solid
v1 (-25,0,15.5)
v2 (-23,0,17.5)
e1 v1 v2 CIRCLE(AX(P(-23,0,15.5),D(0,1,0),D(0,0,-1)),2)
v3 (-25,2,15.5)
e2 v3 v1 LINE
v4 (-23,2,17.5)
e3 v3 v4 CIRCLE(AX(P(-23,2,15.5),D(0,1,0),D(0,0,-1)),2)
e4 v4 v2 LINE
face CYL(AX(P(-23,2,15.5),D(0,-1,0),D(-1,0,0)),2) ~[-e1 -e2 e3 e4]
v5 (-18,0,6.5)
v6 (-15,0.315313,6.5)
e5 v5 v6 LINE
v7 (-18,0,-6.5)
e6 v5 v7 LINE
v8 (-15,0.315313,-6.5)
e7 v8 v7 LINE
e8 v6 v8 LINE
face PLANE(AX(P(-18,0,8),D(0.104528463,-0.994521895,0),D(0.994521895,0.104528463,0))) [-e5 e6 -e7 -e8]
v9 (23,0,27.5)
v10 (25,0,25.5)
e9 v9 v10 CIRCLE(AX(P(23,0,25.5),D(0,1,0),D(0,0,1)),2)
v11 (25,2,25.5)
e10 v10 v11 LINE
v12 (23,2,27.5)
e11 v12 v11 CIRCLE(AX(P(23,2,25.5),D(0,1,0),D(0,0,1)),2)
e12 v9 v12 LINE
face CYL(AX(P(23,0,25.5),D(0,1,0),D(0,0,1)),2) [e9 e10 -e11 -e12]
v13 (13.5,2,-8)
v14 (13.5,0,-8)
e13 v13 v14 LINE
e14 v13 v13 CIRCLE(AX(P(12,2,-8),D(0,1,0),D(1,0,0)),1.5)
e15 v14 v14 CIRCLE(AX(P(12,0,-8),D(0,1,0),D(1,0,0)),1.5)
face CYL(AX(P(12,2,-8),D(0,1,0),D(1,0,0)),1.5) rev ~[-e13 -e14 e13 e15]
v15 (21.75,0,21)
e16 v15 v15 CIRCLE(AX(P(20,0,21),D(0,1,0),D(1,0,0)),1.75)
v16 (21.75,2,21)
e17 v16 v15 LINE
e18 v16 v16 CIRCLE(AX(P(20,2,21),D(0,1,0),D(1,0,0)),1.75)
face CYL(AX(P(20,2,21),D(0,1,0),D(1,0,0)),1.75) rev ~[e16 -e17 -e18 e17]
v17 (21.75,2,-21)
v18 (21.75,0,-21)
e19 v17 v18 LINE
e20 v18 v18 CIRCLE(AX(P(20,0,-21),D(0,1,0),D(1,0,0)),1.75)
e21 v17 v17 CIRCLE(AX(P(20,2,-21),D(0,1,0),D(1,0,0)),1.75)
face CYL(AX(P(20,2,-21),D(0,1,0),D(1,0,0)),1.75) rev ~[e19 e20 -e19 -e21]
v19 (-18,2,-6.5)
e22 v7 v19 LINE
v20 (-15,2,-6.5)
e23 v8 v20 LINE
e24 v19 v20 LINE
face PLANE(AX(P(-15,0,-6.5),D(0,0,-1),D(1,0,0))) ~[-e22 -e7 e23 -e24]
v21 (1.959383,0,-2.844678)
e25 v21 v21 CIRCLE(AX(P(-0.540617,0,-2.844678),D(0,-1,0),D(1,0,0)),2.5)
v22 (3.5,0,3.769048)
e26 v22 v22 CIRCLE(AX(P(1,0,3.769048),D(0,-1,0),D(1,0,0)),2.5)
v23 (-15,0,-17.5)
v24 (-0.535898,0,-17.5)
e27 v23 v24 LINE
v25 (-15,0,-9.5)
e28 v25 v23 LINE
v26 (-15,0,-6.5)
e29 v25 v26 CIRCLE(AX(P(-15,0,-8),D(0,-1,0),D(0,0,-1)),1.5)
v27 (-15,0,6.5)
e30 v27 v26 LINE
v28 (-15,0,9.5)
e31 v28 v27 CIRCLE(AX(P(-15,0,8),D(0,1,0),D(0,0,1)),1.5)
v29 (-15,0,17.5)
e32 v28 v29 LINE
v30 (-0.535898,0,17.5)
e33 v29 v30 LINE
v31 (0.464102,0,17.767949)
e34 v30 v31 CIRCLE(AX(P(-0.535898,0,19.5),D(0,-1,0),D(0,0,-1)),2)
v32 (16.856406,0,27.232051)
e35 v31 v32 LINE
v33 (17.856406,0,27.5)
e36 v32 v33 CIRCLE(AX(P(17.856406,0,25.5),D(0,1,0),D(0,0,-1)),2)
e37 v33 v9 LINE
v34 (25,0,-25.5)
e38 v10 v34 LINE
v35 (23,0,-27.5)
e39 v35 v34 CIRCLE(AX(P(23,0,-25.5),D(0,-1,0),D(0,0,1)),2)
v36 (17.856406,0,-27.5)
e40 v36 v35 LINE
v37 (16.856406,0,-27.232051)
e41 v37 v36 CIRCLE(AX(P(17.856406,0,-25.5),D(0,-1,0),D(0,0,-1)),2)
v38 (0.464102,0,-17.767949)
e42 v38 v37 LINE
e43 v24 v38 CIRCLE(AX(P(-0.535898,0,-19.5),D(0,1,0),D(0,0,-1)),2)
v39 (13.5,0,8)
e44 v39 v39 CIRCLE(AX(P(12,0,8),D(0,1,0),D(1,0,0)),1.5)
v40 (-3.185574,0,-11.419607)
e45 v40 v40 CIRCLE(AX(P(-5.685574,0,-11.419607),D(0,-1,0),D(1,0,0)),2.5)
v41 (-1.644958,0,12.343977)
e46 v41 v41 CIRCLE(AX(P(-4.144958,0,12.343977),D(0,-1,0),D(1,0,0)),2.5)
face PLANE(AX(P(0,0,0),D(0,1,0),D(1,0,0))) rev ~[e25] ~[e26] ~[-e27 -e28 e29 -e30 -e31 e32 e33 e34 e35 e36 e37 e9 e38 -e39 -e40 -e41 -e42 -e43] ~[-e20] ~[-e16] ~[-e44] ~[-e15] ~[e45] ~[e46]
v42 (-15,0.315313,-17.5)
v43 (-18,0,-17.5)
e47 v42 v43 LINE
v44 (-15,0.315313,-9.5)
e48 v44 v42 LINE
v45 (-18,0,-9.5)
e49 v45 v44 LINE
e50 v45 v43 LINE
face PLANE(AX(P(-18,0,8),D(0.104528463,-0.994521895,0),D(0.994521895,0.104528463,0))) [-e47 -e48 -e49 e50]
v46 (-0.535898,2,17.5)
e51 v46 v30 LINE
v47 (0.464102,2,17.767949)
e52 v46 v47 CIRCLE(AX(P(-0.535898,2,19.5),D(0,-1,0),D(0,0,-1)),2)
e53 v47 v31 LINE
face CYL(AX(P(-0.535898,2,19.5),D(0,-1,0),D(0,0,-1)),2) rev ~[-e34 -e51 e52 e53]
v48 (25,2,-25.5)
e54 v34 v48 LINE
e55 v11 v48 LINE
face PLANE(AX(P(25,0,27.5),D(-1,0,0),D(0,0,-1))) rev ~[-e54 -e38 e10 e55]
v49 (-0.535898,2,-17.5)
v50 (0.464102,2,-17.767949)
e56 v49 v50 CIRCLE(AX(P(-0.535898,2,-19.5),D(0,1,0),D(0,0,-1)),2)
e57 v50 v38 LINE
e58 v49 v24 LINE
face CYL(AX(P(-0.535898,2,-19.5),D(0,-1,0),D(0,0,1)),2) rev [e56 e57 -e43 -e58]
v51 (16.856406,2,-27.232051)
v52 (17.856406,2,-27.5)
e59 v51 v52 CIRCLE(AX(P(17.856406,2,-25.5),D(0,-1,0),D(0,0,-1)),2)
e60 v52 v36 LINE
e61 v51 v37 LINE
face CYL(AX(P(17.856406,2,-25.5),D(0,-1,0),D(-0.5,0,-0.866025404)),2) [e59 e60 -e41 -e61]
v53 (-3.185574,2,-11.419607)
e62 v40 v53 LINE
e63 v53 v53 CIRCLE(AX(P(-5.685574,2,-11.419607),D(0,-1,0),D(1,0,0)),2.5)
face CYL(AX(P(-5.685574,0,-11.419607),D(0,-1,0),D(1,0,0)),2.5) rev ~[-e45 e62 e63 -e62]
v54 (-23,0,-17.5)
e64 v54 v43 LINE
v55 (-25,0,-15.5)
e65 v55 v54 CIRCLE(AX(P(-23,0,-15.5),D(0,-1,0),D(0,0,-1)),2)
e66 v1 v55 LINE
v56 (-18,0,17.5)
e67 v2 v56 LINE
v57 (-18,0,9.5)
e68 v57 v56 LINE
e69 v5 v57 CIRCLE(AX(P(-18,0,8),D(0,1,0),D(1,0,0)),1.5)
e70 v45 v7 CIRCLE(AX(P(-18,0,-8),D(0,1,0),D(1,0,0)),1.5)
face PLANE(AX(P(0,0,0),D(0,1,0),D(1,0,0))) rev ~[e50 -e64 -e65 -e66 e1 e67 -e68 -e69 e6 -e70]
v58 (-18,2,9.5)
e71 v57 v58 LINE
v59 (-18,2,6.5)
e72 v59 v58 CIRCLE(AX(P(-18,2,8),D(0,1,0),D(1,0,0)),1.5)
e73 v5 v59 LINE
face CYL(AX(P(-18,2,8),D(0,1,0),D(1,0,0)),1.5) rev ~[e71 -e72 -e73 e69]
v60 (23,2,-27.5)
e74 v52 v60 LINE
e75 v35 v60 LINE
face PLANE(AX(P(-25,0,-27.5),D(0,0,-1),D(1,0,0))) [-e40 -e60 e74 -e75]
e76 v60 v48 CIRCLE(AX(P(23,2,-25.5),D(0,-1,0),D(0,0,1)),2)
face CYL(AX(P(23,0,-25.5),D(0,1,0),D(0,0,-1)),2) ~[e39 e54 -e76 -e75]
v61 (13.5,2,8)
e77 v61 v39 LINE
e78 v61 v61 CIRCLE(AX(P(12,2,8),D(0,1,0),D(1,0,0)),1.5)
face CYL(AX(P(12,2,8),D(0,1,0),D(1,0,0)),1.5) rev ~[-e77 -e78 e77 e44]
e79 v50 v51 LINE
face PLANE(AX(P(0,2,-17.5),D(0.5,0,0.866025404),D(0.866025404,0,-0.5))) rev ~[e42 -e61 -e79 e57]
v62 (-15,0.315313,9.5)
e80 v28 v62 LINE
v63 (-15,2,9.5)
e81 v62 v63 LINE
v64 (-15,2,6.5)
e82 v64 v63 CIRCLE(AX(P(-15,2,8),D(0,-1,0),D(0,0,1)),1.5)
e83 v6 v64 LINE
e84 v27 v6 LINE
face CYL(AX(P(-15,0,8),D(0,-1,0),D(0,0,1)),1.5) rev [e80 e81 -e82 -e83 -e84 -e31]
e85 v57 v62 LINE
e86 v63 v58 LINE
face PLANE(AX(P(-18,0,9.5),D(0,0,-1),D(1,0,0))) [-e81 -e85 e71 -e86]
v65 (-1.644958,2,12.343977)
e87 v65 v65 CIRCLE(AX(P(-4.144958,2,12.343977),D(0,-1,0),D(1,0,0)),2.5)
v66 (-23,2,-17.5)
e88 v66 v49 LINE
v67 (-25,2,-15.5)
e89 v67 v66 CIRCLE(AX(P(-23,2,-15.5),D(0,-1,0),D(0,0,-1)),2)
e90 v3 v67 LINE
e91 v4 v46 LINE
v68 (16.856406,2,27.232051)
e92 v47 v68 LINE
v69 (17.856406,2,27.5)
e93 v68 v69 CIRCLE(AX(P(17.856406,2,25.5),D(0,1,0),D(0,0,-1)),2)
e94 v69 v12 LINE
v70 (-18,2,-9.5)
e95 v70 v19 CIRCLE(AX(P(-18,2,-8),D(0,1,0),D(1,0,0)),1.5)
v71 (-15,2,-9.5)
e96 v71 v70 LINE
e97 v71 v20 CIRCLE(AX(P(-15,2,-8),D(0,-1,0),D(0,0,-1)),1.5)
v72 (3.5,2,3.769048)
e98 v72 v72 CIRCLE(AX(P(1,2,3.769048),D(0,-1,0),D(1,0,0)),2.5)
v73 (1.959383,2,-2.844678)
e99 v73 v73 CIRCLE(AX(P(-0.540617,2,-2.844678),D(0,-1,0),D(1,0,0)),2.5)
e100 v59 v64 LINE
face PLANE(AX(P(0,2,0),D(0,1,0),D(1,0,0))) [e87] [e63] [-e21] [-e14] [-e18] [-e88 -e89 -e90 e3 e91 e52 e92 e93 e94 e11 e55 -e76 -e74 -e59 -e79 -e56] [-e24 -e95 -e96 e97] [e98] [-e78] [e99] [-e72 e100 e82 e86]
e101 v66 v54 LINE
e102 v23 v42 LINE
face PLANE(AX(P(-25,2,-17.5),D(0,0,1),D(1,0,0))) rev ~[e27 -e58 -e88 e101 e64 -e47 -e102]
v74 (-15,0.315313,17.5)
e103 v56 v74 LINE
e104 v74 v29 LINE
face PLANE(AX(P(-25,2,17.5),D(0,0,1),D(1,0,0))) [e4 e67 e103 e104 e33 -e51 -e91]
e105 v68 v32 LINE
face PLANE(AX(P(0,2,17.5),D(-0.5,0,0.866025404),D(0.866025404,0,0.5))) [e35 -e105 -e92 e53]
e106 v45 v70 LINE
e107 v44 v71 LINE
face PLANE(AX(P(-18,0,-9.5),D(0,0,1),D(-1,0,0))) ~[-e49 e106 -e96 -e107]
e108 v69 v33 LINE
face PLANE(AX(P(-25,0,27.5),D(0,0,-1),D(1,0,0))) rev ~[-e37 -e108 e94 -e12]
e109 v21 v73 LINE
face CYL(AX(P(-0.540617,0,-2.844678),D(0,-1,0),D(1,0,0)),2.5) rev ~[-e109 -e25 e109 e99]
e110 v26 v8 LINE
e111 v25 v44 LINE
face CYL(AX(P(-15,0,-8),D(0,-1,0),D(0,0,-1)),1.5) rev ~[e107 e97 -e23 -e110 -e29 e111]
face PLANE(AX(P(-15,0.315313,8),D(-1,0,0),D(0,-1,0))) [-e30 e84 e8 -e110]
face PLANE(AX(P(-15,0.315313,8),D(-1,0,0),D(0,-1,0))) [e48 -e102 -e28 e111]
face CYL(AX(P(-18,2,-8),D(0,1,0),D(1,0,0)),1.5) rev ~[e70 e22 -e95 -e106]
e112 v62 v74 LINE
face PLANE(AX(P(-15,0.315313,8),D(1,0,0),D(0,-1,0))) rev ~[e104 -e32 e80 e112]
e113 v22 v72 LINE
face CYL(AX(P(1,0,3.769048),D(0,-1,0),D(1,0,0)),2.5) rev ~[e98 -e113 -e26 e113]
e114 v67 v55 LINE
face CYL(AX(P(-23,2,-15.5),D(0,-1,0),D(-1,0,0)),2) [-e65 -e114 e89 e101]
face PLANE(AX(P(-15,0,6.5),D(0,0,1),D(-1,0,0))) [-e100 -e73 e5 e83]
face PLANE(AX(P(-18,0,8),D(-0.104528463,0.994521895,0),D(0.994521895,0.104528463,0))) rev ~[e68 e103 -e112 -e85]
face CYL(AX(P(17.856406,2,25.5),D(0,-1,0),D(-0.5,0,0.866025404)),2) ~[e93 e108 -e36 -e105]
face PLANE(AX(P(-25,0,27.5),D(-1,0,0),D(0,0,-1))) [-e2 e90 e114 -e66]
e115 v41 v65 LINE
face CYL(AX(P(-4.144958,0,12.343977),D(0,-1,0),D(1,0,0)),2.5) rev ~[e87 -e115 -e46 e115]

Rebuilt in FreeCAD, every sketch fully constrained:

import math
import FreeCAD as App
import Part
import Sketcher

V = App.Vector
Q = App.Units.Quantity


def edges_at(feature, points):
    """Names of the edges that pass closest to the given points."""
    edges = feature.Shape.Edges
    near = lambda p: min(range(len(edges)), key=lambda i: edges[i].distToShape(Part.Vertex(*p))[0])
    return sorted({f"Edge{near(p) + 1}" for p in points})

doc = App.newDocument("Part")
body = doc.addObject("PartDesign::Body", "Body")

# Sketch on XZ plane
sketch1 = doc.addObject("Sketcher::SketchObject", "Sketch")
body.addObject(sketch1)
sketch1.AttachmentSupport = (doc.XZ_Plane, [""])
sketch1.MapMode = "FlatFace"
sketch1.addGeometry(Part.LineSegment(V(-25, -28, 0), V(-25, 28, 0)), False)
sketch1.addGeometry(Part.LineSegment(V(-25, 28, 0), V(25, 28, 0)), False)
sketch1.addGeometry(Part.LineSegment(V(25, 28, 0), V(25, -28, 0)), False)
sketch1.addGeometry(Part.LineSegment(V(25, -28, 0), V(-25, -28, 0)), False)
sketch1.addConstraint(Sketcher.Constraint("Coincident", 0, 2, 1, 1))
sketch1.addConstraint(Sketcher.Constraint("Coincident", 1, 2, 2, 1))
sketch1.addConstraint(Sketcher.Constraint("Coincident", 2, 2, 3, 1))
sketch1.addConstraint(Sketcher.Constraint("Coincident", 3, 2, 0, 1))
sketch1.addConstraint(Sketcher.Constraint("Vertical", 0))
sketch1.addConstraint(Sketcher.Constraint("Horizontal", 1))
sketch1.addConstraint(Sketcher.Constraint("Vertical", 2))
sketch1.addConstraint(Sketcher.Constraint("Horizontal", 3))
sketch1.addConstraint(Sketcher.Constraint("Symmetric", 0, 2, 2, 2, -1, 1))
sketch1.addConstraint(Sketcher.Constraint("DistanceX", 1, 1, 1, 2, 50.0))
sketch1.addConstraint(Sketcher.Constraint("DistanceY", 0, 1, 0, 2, 55.0))
pad1 = doc.addObject("PartDesign::Pad", "Pad")
body.addObject(pad1)
pad1.Profile = sketch1
pad1.Length = 2
pad1.Reversed = True

# Sketch on XZ plane
sketch2 = doc.addObject("Sketcher::SketchObject", "Sketch001")
body.addObject(sketch2)
sketch2.AttachmentSupport = (doc.XZ_Plane, [""])
sketch2.MapMode = "FlatFace"
sketch2.AttachmentOffset = App.Placement(V(0, 0, -2), App.Rotation())
sketch2.addGeometry(Part.Circle(V(-18, -8, 0), V(0, 0, 1), 1.5), False)
sketch2.addGeometry(Part.Circle(V(-18, 8, 0), V(0, 0, 1), 1.5), False)
sketch2.addGeometry(Part.Circle(V(12, 8, 0), V(0, 0, 1), 1.5), False)
sketch2.addGeometry(Part.Circle(V(12, -8, 0), V(0, 0, 1), 1.5), False)
sketch2.addConstraint(Sketcher.Constraint("Equal", 0, 1))
sketch2.addConstraint(Sketcher.Constraint("Equal", 1, 2))
sketch2.addConstraint(Sketcher.Constraint("Equal", 2, 3))
sketch2.addConstraint(Sketcher.Constraint("Symmetric", 0, 3, 1, 3, -1))
sketch2.addConstraint(Sketcher.Constraint("Symmetric", 2, 3, 3, 3, -1))
sketch2.addConstraint(Sketcher.Constraint("Horizontal", 1, 3, 2, 3))
sketch2.addConstraint(Sketcher.Constraint("Diameter", 0, 3.0))
sketch2.addConstraint(Sketcher.Constraint("DistanceX", 0, 3, -1, 1, 18.0))
sketch2.addConstraint(Sketcher.Constraint("DistanceY", 0, 3, -1, 1, 8.0))
sketch2.addConstraint(Sketcher.Constraint("DistanceX", -1, 1, 2, 3, 12.0))
pocket1 = doc.addObject("PartDesign::Pocket", "Pocket")
body.addObject(pocket1)
pocket1.Profile = sketch2
pocket1.Type = "ThroughAll"
pocket1.Reversed = True

# Sketch on XZ plane
sketch3 = doc.addObject("Sketcher::SketchObject", "Sketch002")
body.addObject(sketch3)
sketch3.AttachmentSupport = (doc.XZ_Plane, [""])
sketch3.MapMode = "FlatFace"
sketch3.addGeometry(Part.LineSegment(V(-15, 9.5, 0), V(-18, 9.5, 0)), False)
sketch3.addGeometry(Part.LineSegment(V(-18, 9.5, 0), V(-18, 6.5, 0)), False)
sketch3.addGeometry(Part.LineSegment(V(-18, 6.5, 0), V(-15, 6.5, 0)), False)
sketch3.addGeometry(Part.ArcOfCircle(Part.Circle(V(-15, 8, 0), V(0, 0, 1), 1.5), math.radians(-90), math.radians(90)), False)
sketch3.addConstraint(Sketcher.Constraint("Coincident", 0, 2, 1, 1))
sketch3.addConstraint(Sketcher.Constraint("Coincident", 1, 2, 2, 1))
sketch3.addConstraint(Sketcher.Constraint("Tangent", 2, 2, 3, 1))
sketch3.addConstraint(Sketcher.Constraint("Tangent", 3, 2, 0, 1))
sketch3.addConstraint(Sketcher.Constraint("Horizontal", 0))
sketch3.addConstraint(Sketcher.Constraint("Vertical", 1))
sketch3.addConstraint(Sketcher.Constraint("Horizontal", 2))
sketch3.addConstraint(Sketcher.Constraint("Equal", 2, 1))
sketch3.addConstraint(Sketcher.Constraint("Radius", 3, 1.5))
sketch3.addConstraint(Sketcher.Constraint("DistanceX", 3, 3, -1, 1, 15.0))
sketch3.addConstraint(Sketcher.Constraint("DistanceY", -1, 1, 3, 3, 8.0))
pocket2 = doc.addObject("PartDesign::Pocket", "Pocket001")
body.addObject(pocket2)
pocket2.Profile = sketch3
pocket2.Length = 10

# Sketch on XY plane
sketch4 = doc.addObject("Sketcher::SketchObject", "Sketch003")
body.addObject(sketch4)
sketch4.AttachmentSupport = (doc.XY_Plane, [""])
sketch4.MapMode = "FlatFace"
sketch4.AttachmentOffset = App.Placement(V(0, 0, 8), App.Rotation())
sketch4.addGeometry(Part.LineSegment(V(-15, 0.32, 0), V(-18, 0, 0)), False)
sketch4.addGeometry(Part.LineSegment(V(-18, 0, 0), V(-15, 0, 0)), False)
sketch4.addGeometry(Part.LineSegment(V(-15, 0, 0), V(-15, 0.32, 0)), False)
sketch4.addConstraint(Sketcher.Constraint("Coincident", 0, 2, 1, 1))
sketch4.addConstraint(Sketcher.Constraint("Coincident", 1, 2, 2, 1))
sketch4.addConstraint(Sketcher.Constraint("Coincident", 2, 2, 0, 1))
sketch4.addConstraint(Sketcher.Constraint("Horizontal", 1))
sketch4.addConstraint(Sketcher.Constraint("Vertical", 2))
sketch4.addConstraint(Sketcher.Constraint("PointOnObject", 0, 2, -1))
sketch4.addConstraint(Sketcher.Constraint("DistanceX", 1, 1, 1, 2, 3.0))
sketch4.addConstraint(Sketcher.Constraint("Angle", 0, Q("-174 deg")))
sketch4.addConstraint(Sketcher.Constraint("DistanceX", 0, 2, -1, 1, 18.0))
pocket3 = doc.addObject("PartDesign::Pocket", "Pocket002")
body.addObject(pocket3)
pocket3.Profile = sketch4
pocket3.Type = "ThroughAll"
pocket3.Midplane = True
doc.recompute()

mirrored = doc.addObject("PartDesign::Mirrored", "Mirrored")
body.addObject(mirrored)
mirrored.Originals = [pocket2]
mirrored.MirrorPlane = (doc.XY_Plane, [""])
body.Tip = mirrored

# Sketch on XZ plane
sketch5 = doc.addObject("Sketcher::SketchObject", "Sketch004")
body.addObject(sketch5)
sketch5.AttachmentSupport = (doc.XZ_Plane, [""])
sketch5.MapMode = "FlatFace"
sketch5.AttachmentOffset = App.Placement(V(0, 0, -2), App.Rotation())
sketch5.addGeometry(Part.Circle(V(20, -21, 0), V(0, 0, 1), 1.8), False)
sketch5.addGeometry(Part.Circle(V(20, 21, 0), V(0, 0, 1), 1.8), False)
sketch5.addConstraint(Sketcher.Constraint("Equal", 0, 1))
sketch5.addConstraint(Sketcher.Constraint("Symmetric", 0, 3, 1, 3, -1))
sketch5.addConstraint(Sketcher.Constraint("Diameter", 0, 3.5))
sketch5.addConstraint(Sketcher.Constraint("DistanceX", -1, 1, 0, 3, 20.0))
sketch5.addConstraint(Sketcher.Constraint("DistanceY", 0, 3, -1, 1, 21.0))
pocket4 = doc.addObject("PartDesign::Pocket", "Pocket003")
body.addObject(pocket4)
pocket4.Profile = sketch5
pocket4.Length = 10
pocket4.Reversed = True

# Sketch on XZ plane
sketch6 = doc.addObject("Sketcher::SketchObject", "Sketch005")
body.addObject(sketch6)
sketch6.AttachmentSupport = (doc.XZ_Plane, [""])
sketch6.MapMode = "FlatFace"
sketch6.AttachmentOffset = App.Placement(V(0, 0, -2), App.Rotation())
sketch6.addGeometry(Part.LineSegment(V(-25, -18, 0), V(0, -18, 0)), False)
sketch6.addGeometry(Part.LineSegment(V(0, -18, 0), V(17, -28, 0)), False)
sketch6.addGeometry(Part.LineSegment(V(17, -28, 0), V(-25, -28, 0)), False)
sketch6.addGeometry(Part.LineSegment(V(-25, -28, 0), V(-25, -18, 0)), False)
sketch6.addGeometry(Part.LineSegment(V(-25, 28, 0), V(17, 28, 0)), False)
sketch6.addGeometry(Part.LineSegment(V(17, 28, 0), V(0, 18, 0)), False)
sketch6.addGeometry(Part.LineSegment(V(0, 18, 0), V(-25, 18, 0)), False)
sketch6.addGeometry(Part.LineSegment(V(-25, 18, 0), V(-25, 28, 0)), False)
sketch6.addConstraint(Sketcher.Constraint("Coincident", 0, 2, 1, 1))
sketch6.addConstraint(Sketcher.Constraint("Coincident", 1, 2, 2, 1))
sketch6.addConstraint(Sketcher.Constraint("Coincident", 2, 2, 3, 1))
sketch6.addConstraint(Sketcher.Constraint("Coincident", 3, 2, 0, 1))
sketch6.addConstraint(Sketcher.Constraint("Coincident", 4, 2, 5, 1))
sketch6.addConstraint(Sketcher.Constraint("Coincident", 5, 2, 6, 1))
sketch6.addConstraint(Sketcher.Constraint("Coincident", 6, 2, 7, 1))
sketch6.addConstraint(Sketcher.Constraint("Coincident", 7, 2, 4, 1))
sketch6.addConstraint(Sketcher.Constraint("Horizontal", 0))
sketch6.addConstraint(Sketcher.Constraint("Horizontal", 2))
sketch6.addConstraint(Sketcher.Constraint("Vertical", 3))
sketch6.addConstraint(Sketcher.Constraint("Horizontal", 4))
sketch6.addConstraint(Sketcher.Constraint("Horizontal", 6))
sketch6.addConstraint(Sketcher.Constraint("Vertical", 7))
sketch6.addConstraint(Sketcher.Constraint("Symmetric", 0, 2, 5, 2, -1, 1))
sketch6.addConstraint(Sketcher.Constraint("Symmetric", 1, 2, 4, 2, -1))
sketch6.addConstraint(Sketcher.Constraint("PointOnObject", 0, 2, -2))
sketch6.addConstraint(Sketcher.Constraint("Vertical", 3, 2, 6, 2))
sketch6.addConstraint(Sketcher.Constraint("DistanceX", 0, 1, 0, 2, 25.0))
sketch6.addConstraint(Sketcher.Constraint("DistanceY", 3, 1, 3, 2, 10.0))
sketch6.addConstraint(Sketcher.Constraint("Angle", 1, Q("-30 deg")))
sketch6.addConstraint(Sketcher.Constraint("DistanceY", 0, 2, 4, 2, 45.0))
pocket5 = doc.addObject("PartDesign::Pocket", "Pocket004")
body.addObject(pocket5)
pocket5.Profile = sketch6
pocket5.Length = 10
pocket5.Reversed = True

# Sketch on XZ plane
sketch7 = doc.addObject("Sketcher::SketchObject", "Sketch006")
body.addObject(sketch7)
sketch7.AttachmentSupport = (doc.XZ_Plane, [""])
sketch7.MapMode = "FlatFace"
sketch7.addGeometry(Part.Circle(V(-5.7, -11.4, 0), V(0, 0, 1), 2.5), False)
sketch7.addGeometry(Part.Circle(V(-0.5, -2.8, 0), V(0, 0, 1), 2.5), False)
sketch7.addGeometry(Part.Circle(V(-4.1, 12.3, 0), V(0, 0, 1), 2.5), False)
sketch7.addGeometry(Part.Circle(V(1, 3.8, 0), V(0, 0, 1), 2.5), False)
sketch7.addConstraint(Sketcher.Constraint("Equal", 0, 1))
sketch7.addConstraint(Sketcher.Constraint("Equal", 1, 2))
sketch7.addConstraint(Sketcher.Constraint("Equal", 2, 3))
sketch7.addConstraint(Sketcher.Constraint("Diameter", 0, 5.0))
sketch7.addConstraint(Sketcher.Constraint("DistanceX", -1, 1, 3, 3, 1.0))
sketch7.addConstraint(Sketcher.Constraint("DistanceY", 1, 3, -1, 1, 2.844678))
sketch7.addConstraint(Sketcher.Constraint("DistanceY", -1, 1, 3, 3, 3.769048))
sketch7.addConstraint(Sketcher.Constraint("DistanceY", 0, 3, 1, 3, 8.574929))
sketch7.addConstraint(Sketcher.Constraint("DistanceX", 2, 3, 1, 3, 3.604341))
sketch7.addConstraint(Sketcher.Constraint("DistanceY", 3, 3, 2, 3, 8.574929))
sketch7.addConstraint(Sketcher.Constraint("DistanceX", 0, 3, -1, 1, 5.685574))
sketch7.addConstraint(Sketcher.Constraint("DistanceX", 1, 3, -1, 1, 0.540617))
pocket6 = doc.addObject("PartDesign::Pocket", "Pocket005")
body.addObject(pocket6)
pocket6.Profile = sketch7
pocket6.Length = 10
doc.recompute()

fillet = doc.addObject("PartDesign::Fillet", "Fillet")
body.addObject(fillet)
fillet.Base = (pocket6, edges_at(pocket6, [
    (17.321, 1, -27.5),
    (-25, 1, -17.5),
    (0, 1, -17.5),
    (0, 1, 17.5),
    (17.321, 1, 27.5),
    (-25, 1, 17.5),
    (25, 1, 27.5),
    (25, 1, -27.5),
]))
fillet.Radius = 2

doc.recompute()
